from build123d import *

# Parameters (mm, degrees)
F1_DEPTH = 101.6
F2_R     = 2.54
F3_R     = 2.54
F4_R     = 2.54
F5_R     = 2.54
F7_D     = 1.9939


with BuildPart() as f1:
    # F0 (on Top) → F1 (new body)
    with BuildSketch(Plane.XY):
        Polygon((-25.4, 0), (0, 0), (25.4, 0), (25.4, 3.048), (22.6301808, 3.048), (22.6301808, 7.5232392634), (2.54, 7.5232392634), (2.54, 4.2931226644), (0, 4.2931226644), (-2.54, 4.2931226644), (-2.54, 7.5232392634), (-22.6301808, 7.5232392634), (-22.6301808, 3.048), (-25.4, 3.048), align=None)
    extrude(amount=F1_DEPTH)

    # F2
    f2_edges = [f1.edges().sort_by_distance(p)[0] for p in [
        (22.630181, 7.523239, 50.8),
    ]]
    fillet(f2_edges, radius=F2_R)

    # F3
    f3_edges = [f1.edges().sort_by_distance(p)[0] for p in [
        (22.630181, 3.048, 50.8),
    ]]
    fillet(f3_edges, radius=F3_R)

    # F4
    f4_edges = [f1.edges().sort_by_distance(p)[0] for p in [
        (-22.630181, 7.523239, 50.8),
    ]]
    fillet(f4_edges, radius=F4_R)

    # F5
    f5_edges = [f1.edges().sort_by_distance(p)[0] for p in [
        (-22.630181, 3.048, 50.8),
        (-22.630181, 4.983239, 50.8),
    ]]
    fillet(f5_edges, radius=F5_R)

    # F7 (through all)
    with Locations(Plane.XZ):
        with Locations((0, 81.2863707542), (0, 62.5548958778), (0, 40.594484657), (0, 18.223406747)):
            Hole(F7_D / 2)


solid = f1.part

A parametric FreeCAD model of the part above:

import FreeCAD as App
import Part
import Sketcher
Q = App.Units.Quantity


def edges_at(feature, points):
    """Names of the edges that pass closest to the given points."""
    edges = feature.Shape.Edges
    near = lambda p: min(range(len(edges)), key=lambda i: edges[i].distToShape(Part.Vertex(*p))[0])
    return sorted({f"Edge{near(p) + 1}" for p in points})

doc = App.newDocument("Part")
body = doc.addObject("PartDesign::Body", "Body")

sketch1 = doc.addObject("Sketcher::SketchObject", "Sketch")
body.addObject(sketch1)
sketch1.AttachmentSupport = (doc.XY_Plane, [""])
sketch1.MapMode = "FlatFace"
sketch1.addGeometry([
    Part.LineSegment(App.Vector(-25.4, 0, 0), App.Vector(25.4, 0, 0)),
    Part.LineSegment(App.Vector(25.4, 0, 0), App.Vector(25.4, 3, 0)),
    Part.LineSegment(App.Vector(25.4, 3, 0), App.Vector(22.6, 3, 0)),
    Part.LineSegment(App.Vector(22.6, 3, 0), App.Vector(22.6, 7.5, 0)),
    Part.LineSegment(App.Vector(22.6, 7.5, 0), App.Vector(2.5, 7.5, 0)),
    Part.LineSegment(App.Vector(2.5, 7.5, 0), App.Vector(2.5, 4.3, 0)),
    Part.LineSegment(App.Vector(2.5, 4.3, 0), App.Vector(-2.5, 4.3, 0)),
    Part.LineSegment(App.Vector(-2.5, 4.3, 0), App.Vector(-2.5, 7.5, 0)),
    Part.LineSegment(App.Vector(-2.5, 7.5, 0), App.Vector(-22.6, 7.5, 0)),
    Part.LineSegment(App.Vector(-22.6, 7.5, 0), App.Vector(-22.6, 3, 0)),
    Part.LineSegment(App.Vector(-22.6, 3, 0), App.Vector(-25.4, 3, 0)),
    Part.LineSegment(App.Vector(-25.4, 3, 0), App.Vector(-25.4, 0, 0)),
], False)
sketch1.addConstraint([
    Sketcher.Constraint("Coincident", 0, 2, 1, 1),
    Sketcher.Constraint("Coincident", 1, 2, 2, 1),
    Sketcher.Constraint("Coincident", 2, 2, 3, 1),
    Sketcher.Constraint("Coincident", 3, 2, 4, 1),
    Sketcher.Constraint("Coincident", 4, 2, 5, 1),
    Sketcher.Constraint("Coincident", 5, 2, 6, 1),
    Sketcher.Constraint("Coincident", 6, 2, 7, 1),
    Sketcher.Constraint("Coincident", 7, 2, 8, 1),
    Sketcher.Constraint("Coincident", 8, 2, 9, 1),
    Sketcher.Constraint("Coincident", 9, 2, 10, 1),
    Sketcher.Constraint("Coincident", 10, 2, 11, 1),
    Sketcher.Constraint("Coincident", 11, 2, 0, 1),
    Sketcher.Constraint("Horizontal", 0),
    Sketcher.Constraint("Vertical", 1),
    Sketcher.Constraint("Horizontal", 2),
    Sketcher.Constraint("Vertical", 3),
    Sketcher.Constraint("Horizontal", 4),
    Sketcher.Constraint("Vertical", 5),
    Sketcher.Constraint("Horizontal", 6),
    Sketcher.Constraint("Vertical", 7),
    Sketcher.Constraint("Horizontal", 8),
    Sketcher.Constraint("Vertical", 9),
    Sketcher.Constraint("Horizontal", 10),
    Sketcher.Constraint("Vertical", 11),
    Sketcher.Constraint("Symmetric", 0, 2, 11, 2, -1, 1),
    Sketcher.Constraint("Symmetric", 4, 2, 7, 2, -2),
    Sketcher.Constraint("Symmetric", 2, 2, 9, 2, -2),
    Sketcher.Constraint("DistanceX", 0, 1, 0, 2, Q("2 in")),
    Sketcher.Constraint("DistanceX", 6, 2, 6, 1, Q("0.2 in")),
    Sketcher.Constraint("DistanceY", 1, 1, 1, 2, Q("0.12 in")),
    Sketcher.Constraint("DistanceX", 2, 2, 2, 1, Q("2.769819 mm")),
    Sketcher.Constraint("DistanceY", 3, 1, 3, 2, Q("4.475239 mm")),
    Sketcher.Constraint("DistanceY", 5, 2, 5, 1, Q("3.230117 mm")),
])
pad1 = doc.addObject("PartDesign::Pad", "Pad")
body.addObject(pad1)
pad1.Profile = sketch1
pad1.Length = Q("4 in")
doc.recompute()

fillet = doc.addObject("PartDesign::Fillet", "Fillet")
body.addObject(fillet)
fillet.Base = (pad1, edges_at(pad1, [(22.63, 7.523, 50.8)]))
fillet.Radius = Q("0.1 in")
doc.recompute()

fillet2 = doc.addObject("PartDesign::Fillet", "Fillet001")
body.addObject(fillet2)
fillet2.Base = (fillet, edges_at(fillet, [(22.63, 3.048, 50.8)]))
fillet2.Radius = Q("0.1 in")
doc.recompute()

fillet3 = doc.addObject("PartDesign::Fillet", "Fillet002")
body.addObject(fillet3)
fillet3.Base = (fillet2, edges_at(fillet2, [(-22.63, 7.523, 50.8)]))
fillet3.Radius = Q("0.1 in")
doc.recompute()

fillet4 = doc.addObject("PartDesign::Fillet", "Fillet003")
body.addObject(fillet4)
fillet4.Base = (fillet3, edges_at(fillet3, [(-22.63, 3.048, 50.8), (-22.63, 4.983, 50.8)]))
fillet4.Radius = Q("0.1 in")

sketch2 = doc.addObject("Sketcher::SketchObject", "Sketch001")
body.addObject(sketch2)
sketch2.AttachmentSupport = (doc.XZ_Plane, [""])
sketch2.MapMode = "FlatFace"
sketch2.addGeometry([
    Part.Circle(App.Vector(0, 81.3, 0), App.Vector(0, 0, 1), 1),
    Part.Circle(App.Vector(0, 62.6, 0), App.Vector(0, 0, 1), 1),
    Part.Circle(App.Vector(0, 40.6, 0), App.Vector(0, 0, 1), 1),
    Part.Circle(App.Vector(0, 18.2, 0), App.Vector(0, 0, 1), 1),
], False)
sketch2.addConstraint([
    Sketcher.Constraint("Equal", 0, 1),
    Sketcher.Constraint("Equal", 1, 2),
    Sketcher.Constraint("Equal", 2, 3),
    Sketcher.Constraint("PointOnObject", 0, 3, -2),
    Sketcher.Constraint("PointOnObject", 1, 3, -2),
    Sketcher.Constraint("PointOnObject", 2, 3, -2),
    Sketcher.Constraint("PointOnObject", 3, 3, -2),
    Sketcher.Constraint("Diameter", 0, Q("0.0785 in")),
    Sketcher.Constraint("DistanceY", -1, 1, 0, 3, Q("81.286371 mm")),
    Sketcher.Constraint("DistanceY", 2, 3, 1, 3, Q("21.960411 mm")),
    Sketcher.Constraint("DistanceY", 3, 3, 1, 3, Q("44.331489 mm")),
    Sketcher.Constraint("DistanceY", -1, 1, 1, 3, Q("62.554896 mm")),
])
doc.recompute()
hole = doc.addObject("PartDesign::Hole", "Hole")
body.addObject(hole)
hole.Profile = sketch2
hole.ThreadType = "None"
hole.Diameter = Q("0.0785 in")
hole.DepthType = "ThroughAll"

doc.recompute()
